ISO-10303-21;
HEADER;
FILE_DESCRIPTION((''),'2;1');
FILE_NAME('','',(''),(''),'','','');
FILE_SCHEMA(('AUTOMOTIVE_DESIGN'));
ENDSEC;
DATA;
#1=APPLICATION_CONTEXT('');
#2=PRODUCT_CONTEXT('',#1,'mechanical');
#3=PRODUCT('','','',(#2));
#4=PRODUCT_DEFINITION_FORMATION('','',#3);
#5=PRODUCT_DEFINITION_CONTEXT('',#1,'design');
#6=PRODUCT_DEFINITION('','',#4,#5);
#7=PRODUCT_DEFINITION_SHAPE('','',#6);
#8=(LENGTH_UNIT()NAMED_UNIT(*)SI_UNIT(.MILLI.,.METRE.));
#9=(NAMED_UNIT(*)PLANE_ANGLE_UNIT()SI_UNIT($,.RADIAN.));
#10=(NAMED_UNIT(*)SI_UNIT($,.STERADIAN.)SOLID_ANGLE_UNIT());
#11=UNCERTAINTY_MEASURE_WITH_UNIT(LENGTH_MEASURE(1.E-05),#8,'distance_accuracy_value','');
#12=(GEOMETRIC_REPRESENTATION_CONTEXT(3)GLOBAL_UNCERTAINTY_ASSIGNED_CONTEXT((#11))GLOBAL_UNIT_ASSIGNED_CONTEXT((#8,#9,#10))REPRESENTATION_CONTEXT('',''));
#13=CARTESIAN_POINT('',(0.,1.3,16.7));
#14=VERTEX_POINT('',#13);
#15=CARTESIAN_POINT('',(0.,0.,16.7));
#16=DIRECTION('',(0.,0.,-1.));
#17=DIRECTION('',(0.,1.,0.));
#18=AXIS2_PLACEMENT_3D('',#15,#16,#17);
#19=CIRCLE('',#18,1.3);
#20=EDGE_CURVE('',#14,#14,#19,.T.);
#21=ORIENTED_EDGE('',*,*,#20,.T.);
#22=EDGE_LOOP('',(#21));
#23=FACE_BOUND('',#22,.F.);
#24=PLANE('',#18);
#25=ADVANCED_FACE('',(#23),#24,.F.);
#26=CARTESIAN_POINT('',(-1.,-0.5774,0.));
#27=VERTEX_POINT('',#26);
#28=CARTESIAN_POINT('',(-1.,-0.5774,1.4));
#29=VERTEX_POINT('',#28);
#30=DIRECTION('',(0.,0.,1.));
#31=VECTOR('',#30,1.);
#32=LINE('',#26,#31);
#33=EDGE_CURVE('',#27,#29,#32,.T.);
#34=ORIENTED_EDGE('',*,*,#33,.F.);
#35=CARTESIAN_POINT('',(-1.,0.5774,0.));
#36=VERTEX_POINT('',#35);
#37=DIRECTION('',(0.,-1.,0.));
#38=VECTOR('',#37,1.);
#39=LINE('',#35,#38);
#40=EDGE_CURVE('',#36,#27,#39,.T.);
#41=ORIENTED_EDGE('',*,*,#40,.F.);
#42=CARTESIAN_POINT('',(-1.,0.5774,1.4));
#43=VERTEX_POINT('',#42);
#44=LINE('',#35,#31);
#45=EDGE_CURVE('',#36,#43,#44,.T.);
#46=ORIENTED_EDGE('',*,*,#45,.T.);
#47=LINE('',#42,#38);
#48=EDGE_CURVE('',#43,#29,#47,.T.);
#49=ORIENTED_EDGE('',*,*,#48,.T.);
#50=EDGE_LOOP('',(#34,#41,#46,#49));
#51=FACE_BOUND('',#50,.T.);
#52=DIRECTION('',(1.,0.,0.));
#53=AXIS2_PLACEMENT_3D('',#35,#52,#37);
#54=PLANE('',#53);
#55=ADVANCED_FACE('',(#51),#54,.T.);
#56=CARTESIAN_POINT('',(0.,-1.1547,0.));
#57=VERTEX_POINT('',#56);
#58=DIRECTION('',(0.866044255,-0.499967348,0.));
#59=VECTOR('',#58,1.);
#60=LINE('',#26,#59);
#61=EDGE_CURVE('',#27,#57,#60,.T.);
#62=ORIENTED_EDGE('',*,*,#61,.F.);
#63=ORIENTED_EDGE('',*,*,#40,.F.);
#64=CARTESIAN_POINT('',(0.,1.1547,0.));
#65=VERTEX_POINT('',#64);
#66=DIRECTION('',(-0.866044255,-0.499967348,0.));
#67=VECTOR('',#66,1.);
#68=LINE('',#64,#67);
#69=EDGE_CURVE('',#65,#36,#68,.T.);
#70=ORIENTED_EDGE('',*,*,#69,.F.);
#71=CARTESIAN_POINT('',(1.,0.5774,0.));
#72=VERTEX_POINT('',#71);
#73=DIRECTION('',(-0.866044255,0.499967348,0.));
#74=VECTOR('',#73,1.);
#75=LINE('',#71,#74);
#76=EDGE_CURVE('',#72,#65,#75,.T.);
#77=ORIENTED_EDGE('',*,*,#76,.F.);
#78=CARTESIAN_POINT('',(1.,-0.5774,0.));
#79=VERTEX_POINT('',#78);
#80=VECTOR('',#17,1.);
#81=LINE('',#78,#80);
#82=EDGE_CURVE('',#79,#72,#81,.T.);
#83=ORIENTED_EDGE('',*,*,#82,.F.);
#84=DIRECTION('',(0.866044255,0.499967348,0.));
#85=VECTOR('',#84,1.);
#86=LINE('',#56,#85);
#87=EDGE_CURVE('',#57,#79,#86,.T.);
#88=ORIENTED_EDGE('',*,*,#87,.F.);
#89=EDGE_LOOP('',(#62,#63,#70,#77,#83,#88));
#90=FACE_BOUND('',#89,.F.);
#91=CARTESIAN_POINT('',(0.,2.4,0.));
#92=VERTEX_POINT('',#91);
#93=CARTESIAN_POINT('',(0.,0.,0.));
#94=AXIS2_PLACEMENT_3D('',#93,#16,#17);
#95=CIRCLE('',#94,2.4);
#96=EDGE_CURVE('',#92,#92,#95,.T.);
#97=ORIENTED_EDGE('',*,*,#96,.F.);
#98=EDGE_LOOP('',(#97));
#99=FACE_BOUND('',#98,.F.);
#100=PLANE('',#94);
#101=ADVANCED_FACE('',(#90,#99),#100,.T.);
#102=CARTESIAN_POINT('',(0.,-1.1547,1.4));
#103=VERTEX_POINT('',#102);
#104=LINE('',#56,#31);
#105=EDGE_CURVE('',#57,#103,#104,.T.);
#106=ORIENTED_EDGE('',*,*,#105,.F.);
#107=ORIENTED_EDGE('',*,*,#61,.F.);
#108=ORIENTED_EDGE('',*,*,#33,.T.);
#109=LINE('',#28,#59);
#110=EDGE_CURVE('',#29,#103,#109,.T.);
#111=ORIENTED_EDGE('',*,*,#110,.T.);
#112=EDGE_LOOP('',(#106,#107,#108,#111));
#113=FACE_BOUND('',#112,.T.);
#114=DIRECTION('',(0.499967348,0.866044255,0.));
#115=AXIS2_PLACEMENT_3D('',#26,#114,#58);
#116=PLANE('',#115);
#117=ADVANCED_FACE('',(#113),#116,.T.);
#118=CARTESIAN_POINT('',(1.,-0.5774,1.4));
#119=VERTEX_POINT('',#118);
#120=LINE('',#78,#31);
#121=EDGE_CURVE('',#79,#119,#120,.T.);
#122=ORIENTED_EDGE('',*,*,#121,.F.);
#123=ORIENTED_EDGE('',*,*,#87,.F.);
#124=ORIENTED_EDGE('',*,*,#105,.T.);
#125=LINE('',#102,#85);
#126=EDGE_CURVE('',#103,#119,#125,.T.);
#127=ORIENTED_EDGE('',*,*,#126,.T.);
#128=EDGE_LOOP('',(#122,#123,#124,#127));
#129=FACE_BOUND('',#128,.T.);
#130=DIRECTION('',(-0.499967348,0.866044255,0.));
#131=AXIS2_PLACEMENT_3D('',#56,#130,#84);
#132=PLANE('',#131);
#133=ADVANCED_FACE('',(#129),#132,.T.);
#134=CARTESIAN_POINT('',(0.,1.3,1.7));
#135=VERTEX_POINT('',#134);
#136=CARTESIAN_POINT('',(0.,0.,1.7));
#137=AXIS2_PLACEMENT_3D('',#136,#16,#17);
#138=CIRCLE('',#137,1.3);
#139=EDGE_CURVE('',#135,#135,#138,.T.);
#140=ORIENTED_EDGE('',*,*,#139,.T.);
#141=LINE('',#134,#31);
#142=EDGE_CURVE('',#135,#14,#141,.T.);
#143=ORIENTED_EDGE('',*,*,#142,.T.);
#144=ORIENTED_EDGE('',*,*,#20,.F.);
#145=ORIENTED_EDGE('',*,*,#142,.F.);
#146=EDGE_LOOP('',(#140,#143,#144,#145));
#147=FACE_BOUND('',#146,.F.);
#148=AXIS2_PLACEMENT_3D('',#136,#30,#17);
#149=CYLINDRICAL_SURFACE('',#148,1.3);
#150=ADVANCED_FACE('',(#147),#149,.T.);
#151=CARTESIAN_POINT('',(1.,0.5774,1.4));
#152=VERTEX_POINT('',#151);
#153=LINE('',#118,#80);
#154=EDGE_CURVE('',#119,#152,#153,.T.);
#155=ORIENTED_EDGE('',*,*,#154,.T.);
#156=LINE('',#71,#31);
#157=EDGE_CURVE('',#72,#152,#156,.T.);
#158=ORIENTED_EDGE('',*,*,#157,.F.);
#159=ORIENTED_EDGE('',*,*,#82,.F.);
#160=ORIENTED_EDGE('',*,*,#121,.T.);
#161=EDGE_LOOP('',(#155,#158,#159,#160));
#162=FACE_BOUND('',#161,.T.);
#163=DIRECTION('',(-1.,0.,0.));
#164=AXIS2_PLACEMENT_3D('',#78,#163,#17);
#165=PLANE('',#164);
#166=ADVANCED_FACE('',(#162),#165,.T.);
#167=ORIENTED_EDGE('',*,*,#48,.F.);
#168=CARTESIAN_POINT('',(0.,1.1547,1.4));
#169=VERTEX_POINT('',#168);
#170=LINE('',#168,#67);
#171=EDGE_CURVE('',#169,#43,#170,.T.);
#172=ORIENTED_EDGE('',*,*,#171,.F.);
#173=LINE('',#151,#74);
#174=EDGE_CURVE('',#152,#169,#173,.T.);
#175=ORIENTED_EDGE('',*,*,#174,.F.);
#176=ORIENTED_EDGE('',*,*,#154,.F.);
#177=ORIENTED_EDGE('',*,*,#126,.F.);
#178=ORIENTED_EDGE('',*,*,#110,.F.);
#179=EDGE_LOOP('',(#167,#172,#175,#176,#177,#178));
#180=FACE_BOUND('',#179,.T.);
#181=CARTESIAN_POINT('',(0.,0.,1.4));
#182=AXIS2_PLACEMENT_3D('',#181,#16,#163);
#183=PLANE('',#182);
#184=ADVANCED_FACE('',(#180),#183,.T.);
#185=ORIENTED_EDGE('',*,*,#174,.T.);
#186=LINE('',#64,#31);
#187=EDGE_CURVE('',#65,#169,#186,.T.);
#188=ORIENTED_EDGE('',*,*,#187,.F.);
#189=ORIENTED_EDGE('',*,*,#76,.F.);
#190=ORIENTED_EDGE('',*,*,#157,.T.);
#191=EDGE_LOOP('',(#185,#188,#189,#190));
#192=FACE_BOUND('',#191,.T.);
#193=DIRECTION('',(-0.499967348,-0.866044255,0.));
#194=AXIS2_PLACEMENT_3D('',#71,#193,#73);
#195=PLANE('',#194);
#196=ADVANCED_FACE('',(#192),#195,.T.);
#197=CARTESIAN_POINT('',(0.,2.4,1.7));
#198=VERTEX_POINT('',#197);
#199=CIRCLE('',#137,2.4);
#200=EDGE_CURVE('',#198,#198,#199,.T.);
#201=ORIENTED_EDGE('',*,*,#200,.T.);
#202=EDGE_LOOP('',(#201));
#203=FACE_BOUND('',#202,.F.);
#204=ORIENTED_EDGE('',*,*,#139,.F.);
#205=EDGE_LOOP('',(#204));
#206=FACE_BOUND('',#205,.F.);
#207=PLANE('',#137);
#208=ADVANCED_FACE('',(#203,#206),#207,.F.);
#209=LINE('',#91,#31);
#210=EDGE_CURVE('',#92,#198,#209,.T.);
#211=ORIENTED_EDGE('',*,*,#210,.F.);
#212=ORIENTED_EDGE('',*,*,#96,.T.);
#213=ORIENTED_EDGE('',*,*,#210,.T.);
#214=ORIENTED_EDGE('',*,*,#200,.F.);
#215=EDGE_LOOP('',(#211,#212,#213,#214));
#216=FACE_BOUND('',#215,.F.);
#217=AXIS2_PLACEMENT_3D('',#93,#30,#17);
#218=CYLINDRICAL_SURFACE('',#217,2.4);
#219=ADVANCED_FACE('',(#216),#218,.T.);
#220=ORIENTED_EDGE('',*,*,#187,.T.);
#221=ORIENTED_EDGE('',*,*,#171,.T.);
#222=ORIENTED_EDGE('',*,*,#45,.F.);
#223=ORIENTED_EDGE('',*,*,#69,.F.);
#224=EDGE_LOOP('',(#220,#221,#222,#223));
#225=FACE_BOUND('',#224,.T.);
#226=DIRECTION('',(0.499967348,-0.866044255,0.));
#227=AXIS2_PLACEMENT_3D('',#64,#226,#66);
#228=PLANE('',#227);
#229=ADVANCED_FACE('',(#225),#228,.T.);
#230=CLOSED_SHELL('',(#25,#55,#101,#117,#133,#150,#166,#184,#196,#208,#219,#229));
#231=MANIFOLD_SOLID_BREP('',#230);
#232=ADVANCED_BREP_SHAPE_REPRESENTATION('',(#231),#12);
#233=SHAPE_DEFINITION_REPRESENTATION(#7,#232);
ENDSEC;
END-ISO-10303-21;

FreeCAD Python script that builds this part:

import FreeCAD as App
import Part
import Sketcher

V = App.Vector


def add_polygon(sketch, points):
    """Adds a closed chain of lines whose ends are joined by coincident constraints."""
    first, n = sketch.GeometryCount, len(points)
    for a, b in zip(points, points[1:] + points[:1]):
        sketch.addGeometry(Part.LineSegment(App.Vector(*a, 0), App.Vector(*b, 0)), False)
    for i in range(n):
        sketch.addConstraint(Sketcher.Constraint("Coincident", first + i, 2, first + (i + 1) % n, 1))

doc = App.newDocument("Part")
body = doc.addObject("PartDesign::Body", "Body")

# Sketch on YZ plane
sketch1 = body.newObject("Sketcher::SketchObject", "Sketch")
sketch1.AttachmentSupport = (doc.getObject("YZ_Plane"), [""])
sketch1.MapMode = "FlatFace"
add_polygon(sketch1, [(1.3, 16.7), (0, 16.7), (0, 0), (2.4, 0), (2.4, 1.7), (1.3, 1.7)])  # lines 0-5
sketch1.addConstraint([
    Sketcher.Constraint("Horizontal", 0),
    Sketcher.Constraint("Vertical", 1),
    Sketcher.Constraint("Horizontal", 2),
    Sketcher.Constraint("Vertical", 3),
    Sketcher.Constraint("Horizontal", 4),
    Sketcher.Constraint("Vertical", 5),
    Sketcher.Constraint("Coincident", 1, 2, -1, 1),
    Sketcher.Constraint("DistanceY", 5, 1, 5, 2, 15.0),
    Sketcher.Constraint("DistanceY", 3, 1, 3, 2, 1.7),
    Sketcher.Constraint("DistanceX", 0, 2, 0, 1, 1.3),
    Sketcher.Constraint("DistanceX", 2, 1, 2, 2, 2.4),
])
revolution = body.newObject("PartDesign::Revolution", "Revolution")
revolution.Profile = sketch1
revolution.ReferenceAxis = (sketch1, ["V_Axis"])
revolution.Angle = 360

# Sketch on XY plane
sketch2 = body.newObject("Sketcher::SketchObject", "Sketch001")
sketch2.AttachmentSupport = (doc.getObject("XY_Plane"), [""])
sketch2.MapMode = "FlatFace"
add_polygon(sketch2, [(-1, 0.5774), (0, 1.1547), (1, 0.5774), (1, -0.5774), (0, -1.1547), (-1, -0.5774)])  # lines 0-5
sketch2.addConstraint([
    Sketcher.Constraint("Vertical", 2),
    Sketcher.Constraint("Vertical", 5),
    Sketcher.Constraint("Symmetric", 0, 2, 3, 2, -1, 1),
    Sketcher.Constraint("Symmetric", 1, 2, 4, 2, -1, 1),
    Sketcher.Constraint("PointOnObject", 0, 2, -2),
    Sketcher.Constraint("Parallel", 0, 3),
    Sketcher.Constraint("Horizontal", 2, 2, 4, 2),
    Sketcher.Constraint("DistanceX", 4, 2, 2, 2, 2.0),
    Sketcher.Constraint("DistanceY", 2, 2, 2, 1, 1.1548),
    Sketcher.Constraint("DistanceY", 2, 2, 0, 2, 1.732),
])
pocket1 = body.newObject("PartDesign::Pocket", "Pocket")
pocket1.Profile = sketch2
pocket1.Length = 1.4
pocket1.Reversed = True

doc.recompute()
